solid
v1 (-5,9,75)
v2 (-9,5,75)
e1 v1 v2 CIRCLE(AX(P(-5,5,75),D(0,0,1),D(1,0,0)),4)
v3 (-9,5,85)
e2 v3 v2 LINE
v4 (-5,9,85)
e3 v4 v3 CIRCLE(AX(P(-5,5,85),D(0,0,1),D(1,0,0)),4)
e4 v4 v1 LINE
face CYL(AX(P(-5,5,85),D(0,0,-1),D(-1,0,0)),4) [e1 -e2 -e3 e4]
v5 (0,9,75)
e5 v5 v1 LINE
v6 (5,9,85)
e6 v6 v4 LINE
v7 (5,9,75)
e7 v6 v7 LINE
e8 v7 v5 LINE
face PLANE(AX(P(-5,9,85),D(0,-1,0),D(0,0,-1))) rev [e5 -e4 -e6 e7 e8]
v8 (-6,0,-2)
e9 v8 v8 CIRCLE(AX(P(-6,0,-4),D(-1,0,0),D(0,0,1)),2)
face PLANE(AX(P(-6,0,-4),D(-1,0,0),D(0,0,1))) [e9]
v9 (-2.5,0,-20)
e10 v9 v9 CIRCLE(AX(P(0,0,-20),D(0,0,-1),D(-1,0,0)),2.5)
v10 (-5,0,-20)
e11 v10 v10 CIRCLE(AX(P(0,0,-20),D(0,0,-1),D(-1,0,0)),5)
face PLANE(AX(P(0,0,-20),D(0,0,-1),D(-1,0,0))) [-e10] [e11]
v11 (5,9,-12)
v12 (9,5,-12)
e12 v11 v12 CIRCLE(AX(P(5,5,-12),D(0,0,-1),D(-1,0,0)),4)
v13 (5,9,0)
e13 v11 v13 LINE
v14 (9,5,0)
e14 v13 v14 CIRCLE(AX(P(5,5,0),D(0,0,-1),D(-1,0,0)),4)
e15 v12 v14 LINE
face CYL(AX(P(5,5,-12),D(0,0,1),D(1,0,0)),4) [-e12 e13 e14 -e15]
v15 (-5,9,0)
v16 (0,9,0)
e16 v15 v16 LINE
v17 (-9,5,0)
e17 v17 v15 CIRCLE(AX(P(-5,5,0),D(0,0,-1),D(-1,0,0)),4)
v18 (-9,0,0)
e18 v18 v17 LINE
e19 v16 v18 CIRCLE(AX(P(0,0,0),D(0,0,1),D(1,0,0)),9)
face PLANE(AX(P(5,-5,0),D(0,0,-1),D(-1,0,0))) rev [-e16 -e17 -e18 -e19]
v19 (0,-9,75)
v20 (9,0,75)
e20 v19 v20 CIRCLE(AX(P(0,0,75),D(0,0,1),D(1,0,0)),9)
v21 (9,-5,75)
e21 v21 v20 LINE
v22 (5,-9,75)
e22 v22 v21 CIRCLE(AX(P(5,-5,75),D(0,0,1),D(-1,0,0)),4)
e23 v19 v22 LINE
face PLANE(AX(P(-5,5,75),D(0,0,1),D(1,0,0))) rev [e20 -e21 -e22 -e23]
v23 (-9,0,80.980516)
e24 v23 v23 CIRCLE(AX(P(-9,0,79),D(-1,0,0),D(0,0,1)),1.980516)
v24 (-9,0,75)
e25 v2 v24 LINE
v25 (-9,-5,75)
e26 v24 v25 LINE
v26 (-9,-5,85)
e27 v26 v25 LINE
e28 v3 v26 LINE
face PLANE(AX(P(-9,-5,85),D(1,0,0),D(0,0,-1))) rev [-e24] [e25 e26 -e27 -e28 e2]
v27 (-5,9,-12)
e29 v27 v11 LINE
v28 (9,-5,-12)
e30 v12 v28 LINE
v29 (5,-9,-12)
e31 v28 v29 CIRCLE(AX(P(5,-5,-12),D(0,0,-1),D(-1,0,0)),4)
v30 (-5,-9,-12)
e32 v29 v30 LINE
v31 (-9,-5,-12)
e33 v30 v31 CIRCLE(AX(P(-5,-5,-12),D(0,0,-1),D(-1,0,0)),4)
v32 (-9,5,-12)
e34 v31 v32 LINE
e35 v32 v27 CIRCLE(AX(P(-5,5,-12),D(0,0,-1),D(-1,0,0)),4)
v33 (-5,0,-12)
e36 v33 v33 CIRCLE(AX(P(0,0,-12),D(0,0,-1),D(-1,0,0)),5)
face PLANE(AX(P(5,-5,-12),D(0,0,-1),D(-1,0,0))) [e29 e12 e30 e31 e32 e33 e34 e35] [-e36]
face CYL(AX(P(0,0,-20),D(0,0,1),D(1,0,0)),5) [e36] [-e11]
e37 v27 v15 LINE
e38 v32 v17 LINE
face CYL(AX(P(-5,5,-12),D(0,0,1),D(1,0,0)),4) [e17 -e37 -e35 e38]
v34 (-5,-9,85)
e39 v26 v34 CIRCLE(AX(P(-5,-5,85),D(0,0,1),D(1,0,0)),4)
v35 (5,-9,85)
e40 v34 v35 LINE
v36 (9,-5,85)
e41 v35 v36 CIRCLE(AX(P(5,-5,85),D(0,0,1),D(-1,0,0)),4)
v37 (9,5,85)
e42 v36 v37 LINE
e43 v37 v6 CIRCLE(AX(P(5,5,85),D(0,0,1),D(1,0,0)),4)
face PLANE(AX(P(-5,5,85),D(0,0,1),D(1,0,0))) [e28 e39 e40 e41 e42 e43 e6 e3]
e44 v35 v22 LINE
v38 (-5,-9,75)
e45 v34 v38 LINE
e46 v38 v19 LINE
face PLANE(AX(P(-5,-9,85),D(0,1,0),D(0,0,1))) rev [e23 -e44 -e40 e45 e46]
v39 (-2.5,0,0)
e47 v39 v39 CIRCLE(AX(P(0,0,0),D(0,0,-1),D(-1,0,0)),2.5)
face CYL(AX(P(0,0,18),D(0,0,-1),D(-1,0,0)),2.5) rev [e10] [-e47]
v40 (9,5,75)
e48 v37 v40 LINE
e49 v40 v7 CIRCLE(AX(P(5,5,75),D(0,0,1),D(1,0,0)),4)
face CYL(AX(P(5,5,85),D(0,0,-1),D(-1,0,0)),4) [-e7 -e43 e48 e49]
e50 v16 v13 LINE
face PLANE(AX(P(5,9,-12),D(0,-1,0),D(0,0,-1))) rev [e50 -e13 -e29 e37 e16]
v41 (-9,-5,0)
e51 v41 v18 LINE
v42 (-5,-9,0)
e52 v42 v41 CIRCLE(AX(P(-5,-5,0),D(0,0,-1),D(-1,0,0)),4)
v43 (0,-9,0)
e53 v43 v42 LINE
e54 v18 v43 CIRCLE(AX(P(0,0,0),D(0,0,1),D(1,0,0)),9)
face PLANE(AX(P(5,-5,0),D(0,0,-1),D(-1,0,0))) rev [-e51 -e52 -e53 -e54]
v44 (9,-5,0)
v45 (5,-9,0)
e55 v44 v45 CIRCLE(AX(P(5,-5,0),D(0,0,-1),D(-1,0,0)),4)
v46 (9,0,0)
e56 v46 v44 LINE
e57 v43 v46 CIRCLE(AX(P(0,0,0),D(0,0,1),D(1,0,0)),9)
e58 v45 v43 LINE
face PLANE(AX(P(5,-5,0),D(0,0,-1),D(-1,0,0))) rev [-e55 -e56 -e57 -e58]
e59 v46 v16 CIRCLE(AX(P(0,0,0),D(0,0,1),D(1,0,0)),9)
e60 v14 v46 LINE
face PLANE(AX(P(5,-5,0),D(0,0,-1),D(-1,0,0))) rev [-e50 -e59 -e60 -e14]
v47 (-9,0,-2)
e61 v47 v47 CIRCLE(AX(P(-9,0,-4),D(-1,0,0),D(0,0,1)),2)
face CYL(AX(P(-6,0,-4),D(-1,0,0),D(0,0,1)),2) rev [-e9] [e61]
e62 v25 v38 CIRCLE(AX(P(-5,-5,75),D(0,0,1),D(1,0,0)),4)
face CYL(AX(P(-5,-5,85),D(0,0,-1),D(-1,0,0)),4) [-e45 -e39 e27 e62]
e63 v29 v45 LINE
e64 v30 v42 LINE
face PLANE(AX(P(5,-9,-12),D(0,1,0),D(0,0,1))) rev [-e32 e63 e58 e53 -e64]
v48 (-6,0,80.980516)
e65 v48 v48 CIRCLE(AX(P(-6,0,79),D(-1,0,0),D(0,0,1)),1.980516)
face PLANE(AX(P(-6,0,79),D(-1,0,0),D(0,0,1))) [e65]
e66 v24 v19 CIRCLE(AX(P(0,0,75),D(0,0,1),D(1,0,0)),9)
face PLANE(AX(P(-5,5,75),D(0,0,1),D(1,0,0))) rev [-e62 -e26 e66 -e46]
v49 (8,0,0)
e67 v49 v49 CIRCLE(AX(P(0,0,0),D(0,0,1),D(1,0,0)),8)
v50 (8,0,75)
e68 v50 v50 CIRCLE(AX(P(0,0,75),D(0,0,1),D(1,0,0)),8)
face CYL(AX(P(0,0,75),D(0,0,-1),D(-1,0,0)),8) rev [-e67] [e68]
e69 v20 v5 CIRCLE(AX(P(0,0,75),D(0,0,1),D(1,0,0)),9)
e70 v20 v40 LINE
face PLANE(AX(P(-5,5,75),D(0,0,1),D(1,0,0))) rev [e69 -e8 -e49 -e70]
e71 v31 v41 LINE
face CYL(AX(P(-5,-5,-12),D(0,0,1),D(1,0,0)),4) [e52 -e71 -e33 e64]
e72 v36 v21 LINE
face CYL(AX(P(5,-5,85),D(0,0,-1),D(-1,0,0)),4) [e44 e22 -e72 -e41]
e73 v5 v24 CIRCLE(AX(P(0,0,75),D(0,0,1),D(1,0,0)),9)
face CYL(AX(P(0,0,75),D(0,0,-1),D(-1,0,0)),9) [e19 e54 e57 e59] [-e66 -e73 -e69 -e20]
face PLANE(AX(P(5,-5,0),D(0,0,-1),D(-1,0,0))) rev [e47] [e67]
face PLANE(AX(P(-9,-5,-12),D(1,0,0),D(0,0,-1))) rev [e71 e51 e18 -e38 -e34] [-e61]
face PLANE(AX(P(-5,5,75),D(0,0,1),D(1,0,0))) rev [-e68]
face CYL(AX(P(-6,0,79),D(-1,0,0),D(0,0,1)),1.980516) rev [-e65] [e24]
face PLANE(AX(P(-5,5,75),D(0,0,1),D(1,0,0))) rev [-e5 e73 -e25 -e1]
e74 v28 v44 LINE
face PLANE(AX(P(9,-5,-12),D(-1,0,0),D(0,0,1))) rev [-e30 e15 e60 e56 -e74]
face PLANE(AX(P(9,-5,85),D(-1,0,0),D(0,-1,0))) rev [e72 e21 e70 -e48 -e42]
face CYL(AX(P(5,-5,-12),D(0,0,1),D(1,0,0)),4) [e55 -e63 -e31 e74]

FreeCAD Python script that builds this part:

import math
import FreeCAD as App
import Part
import Sketcher

V = App.Vector
Q = App.Units.Quantity

doc = App.newDocument("Part")
body = doc.addObject("PartDesign::Body", "Body")

# Sketch on XY plane
sketch1 = doc.addObject("Sketcher::SketchObject", "Sketch")
body.addObject(sketch1)
sketch1.AttachmentSupport = (doc.XY_Plane, [""])
sketch1.MapMode = "FlatFace"
sketch1.addGeometry([
    Part.Circle(V(0, 0, 0), V(0, 0, 1), 9),
    Part.Circle(V(0, 0, 0), V(0, 0, 1), 8),
], False)
sketch1.addConstraint([
    Sketcher.Constraint("Coincident", 0, 3, -1, 1),
    Sketcher.Constraint("Coincident", 1, 3, -1, 1),
    Sketcher.Constraint("Diameter", 0, Q("18 mm")),
    Sketcher.Constraint("Diameter", 1, Q("16 mm")),
])
pad1 = doc.addObject("PartDesign::Pad", "Pad")
body.addObject(pad1)
pad1.Profile = sketch1
pad1.Length = 75

# Sketch on XY plane
sketch2 = doc.addObject("Sketcher::SketchObject", "Sketch001")
body.addObject(sketch2)
sketch2.AttachmentSupport = (doc.XY_Plane, [""])
sketch2.MapMode = "FlatFace"
sketch2.AttachmentOffset = App.Placement(V(0, 0, 75), App.Rotation())
sketch2.addGeometry([
    Part.LineSegment(V(-5, -9, 0), V(5, -9, 0)),  # 0
    Part.ArcOfCircle(Part.Circle(V(5, -5, 0), V(0, 0, 1), 4), math.radians(-90), math.radians(0)),  # 1
    Part.LineSegment(V(9, -5, 0), V(9, 5, 0)),  # 2
    Part.ArcOfCircle(Part.Circle(V(5, 5, 0), V(0, 0, 1), 4), math.radians(0), math.radians(90)),  # 3
    Part.LineSegment(V(5, 9, 0), V(-5, 9, 0)),  # 4
    Part.ArcOfCircle(Part.Circle(V(-5, 5, 0), V(0, 0, 1), 4), math.radians(90), math.radians(180)),  # 5
    Part.LineSegment(V(-9, 5, 0), V(-9, -5, 0)),  # 6
    Part.ArcOfCircle(Part.Circle(V(-5, -5, 0), V(0, 0, 1), 4), math.radians(180), math.radians(270)),  # 7
], False)
sketch2.addConstraint([
    Sketcher.Constraint("Tangent", 0, 2, 1, 1),
    Sketcher.Constraint("Tangent", 1, 2, 2, 1),
    Sketcher.Constraint("Tangent", 2, 2, 3, 1),
    Sketcher.Constraint("Tangent", 3, 2, 4, 1),
    Sketcher.Constraint("Tangent", 4, 2, 5, 1),
    Sketcher.Constraint("Tangent", 5, 2, 6, 1),
    Sketcher.Constraint("Tangent", 6, 2, 7, 1),
    Sketcher.Constraint("Tangent", 7, 2, 0, 1),
    Sketcher.Constraint("Horizontal", 0),
    Sketcher.Constraint("Vertical", 2),
    Sketcher.Constraint("Horizontal", 4),
    Sketcher.Constraint("Vertical", 6),
    Sketcher.Constraint("Equal", 1, 3),
    Sketcher.Constraint("Equal", 3, 5),
    Sketcher.Constraint("Equal", 5, 7),
    Sketcher.Constraint("Symmetric", 1, 3, 5, 3, -1, 1),
    Sketcher.Constraint("Equal", 4, 2),
    Sketcher.Constraint("Radius", 1, Q("4 mm")),
    Sketcher.Constraint("DistanceX", 0, 1, 0, 2, Q("10 mm")),
])
pad2 = doc.addObject("PartDesign::Pad", "Pad001")
body.addObject(pad2)
pad2.Profile = sketch2
pad2.Length = 10

# Sketch on XY plane
sketch3 = doc.addObject("Sketcher::SketchObject", "Sketch002")
body.addObject(sketch3)
sketch3.AttachmentSupport = (doc.XY_Plane, [""])
sketch3.MapMode = "FlatFace"
sketch3.AttachmentOffset = App.Placement(V(0, 0, -12), App.Rotation())
sketch3.addGeometry([
    Part.LineSegment(V(5, -9, 0), V(-5, -9, 0)),  # 0
    Part.ArcOfCircle(Part.Circle(V(-5, -5, 0), V(0, 0, 1), 4), math.radians(180), math.radians(270)),  # 1
    Part.LineSegment(V(-9, -5, 0), V(-9, 5, 0)),  # 2
    Part.ArcOfCircle(Part.Circle(V(-5, 5, 0), V(0, 0, 1), 4), math.radians(90), math.radians(180)),  # 3
    Part.LineSegment(V(-5, 9, 0), V(5, 9, 0)),  # 4
    Part.ArcOfCircle(Part.Circle(V(5, 5, 0), V(0, 0, 1), 4), math.radians(0), math.radians(90)),  # 5
    Part.LineSegment(V(9, 5, 0), V(9, -5, 0)),  # 6
    Part.ArcOfCircle(Part.Circle(V(5, -5, 0), V(0, 0, 1), 4), math.radians(-90), math.radians(0)),  # 7
], False)
sketch3.addConstraint([
    Sketcher.Constraint("Tangent", 0, 2, 1, 2),
    Sketcher.Constraint("Tangent", 1, 1, 2, 1),
    Sketcher.Constraint("Tangent", 2, 2, 3, 2),
    Sketcher.Constraint("Tangent", 3, 1, 4, 1),
    Sketcher.Constraint("Tangent", 4, 2, 5, 2),
    Sketcher.Constraint("Tangent", 5, 1, 6, 1),
    Sketcher.Constraint("Tangent", 6, 2, 7, 2),
    Sketcher.Constraint("Tangent", 7, 1, 0, 1),
    Sketcher.Constraint("Horizontal", 0),
    Sketcher.Constraint("Vertical", 2),
    Sketcher.Constraint("Horizontal", 4),
    Sketcher.Constraint("Vertical", 6),
    Sketcher.Constraint("Equal", 1, 3),
    Sketcher.Constraint("Equal", 3, 5),
    Sketcher.Constraint("Equal", 5, 7),
    Sketcher.Constraint("Symmetric", 1, 3, 5, 3, -1, 1),
    Sketcher.Constraint("Equal", 4, 2),
    Sketcher.Constraint("Radius", 1, Q("4 mm")),
    Sketcher.Constraint("DistanceX", 0, 2, 0, 1, Q("10 mm")),
])
pad3 = doc.addObject("PartDesign::Pad", "Pad002")
body.addObject(pad3)
pad3.Profile = sketch3
pad3.Length = 12

# Sketch on XY plane
sketch4 = doc.addObject("Sketcher::SketchObject", "Sketch003")
body.addObject(sketch4)
sketch4.AttachmentSupport = (doc.XY_Plane, [""])
sketch4.MapMode = "FlatFace"
sketch4.AttachmentOffset = App.Placement(V(0, 0, -12), App.Rotation())
sketch4.addGeometry(Part.Circle(V(0, 0, 0), V(0, 0, 1), 5), False)
sketch4.addConstraint([
    Sketcher.Constraint("Coincident", 0, 3, -1, 1),
    Sketcher.Constraint("Diameter", 0, Q("10 mm")),
])
pad4 = doc.addObject("PartDesign::Pad", "Pad003")
body.addObject(pad4)
pad4.Profile = sketch4
pad4.Length = 8
pad4.Reversed = True

# Sketch on XY plane
sketch5 = doc.addObject("Sketcher::SketchObject", "Sketch004")
body.addObject(sketch5)
sketch5.AttachmentSupport = (doc.XY_Plane, [""])
sketch5.MapMode = "FlatFace"
sketch5.AttachmentOffset = App.Placement(V(0, 0, -20), App.Rotation())
sketch5.addGeometry(Part.Circle(V(0, 0, 0), V(0, 0, 1), 2.5), False)
sketch5.addConstraint([
    Sketcher.Constraint("Coincident", 0, 3, -1, 1),
    Sketcher.Constraint("Diameter", 0, Q("5 mm")),
])
pocket1 = doc.addObject("PartDesign::Pocket", "Pocket")
body.addObject(pocket1)
pocket1.Profile = sketch5
pocket1.Length = 38
pocket1.Reversed = True

# Sketch on YZ plane
sketch6 = doc.addObject("Sketcher::SketchObject", "Sketch005")
body.addObject(sketch6)
sketch6.AttachmentSupport = (doc.YZ_Plane, [""])
sketch6.MapMode = "FlatFace"
sketch6.AttachmentOffset = App.Placement(V(0, 0, -9), App.Rotation())
sketch6.addGeometry([
    Part.Circle(V(0, -4, 0), V(0, 0, 1), 2),
    Part.Circle(V(0, 79, 0), V(0, 0, 1), 1.980516),
], False)
sketch6.addConstraint([
    Sketcher.Constraint("PointOnObject", 0, 3, -2),
    Sketcher.Constraint("PointOnObject", 1, 3, -2),
    Sketcher.Constraint("Diameter", 0, Q("4 mm")),
    Sketcher.Constraint("DistanceY", 0, 3, -1, 1, Q("4 mm")),
    Sketcher.Constraint("DistanceY", -1, 1, 1, 3, Q("79 mm")),
    Sketcher.Constraint("Diameter", 1, Q("3.961033 mm")),
])
pocket2 = doc.addObject("PartDesign::Pocket", "Pocket001")
body.addObject(pocket2)
pocket2.Profile = sketch6
pocket2.Length = 3
pocket2.Reversed = True

doc.recompute()
